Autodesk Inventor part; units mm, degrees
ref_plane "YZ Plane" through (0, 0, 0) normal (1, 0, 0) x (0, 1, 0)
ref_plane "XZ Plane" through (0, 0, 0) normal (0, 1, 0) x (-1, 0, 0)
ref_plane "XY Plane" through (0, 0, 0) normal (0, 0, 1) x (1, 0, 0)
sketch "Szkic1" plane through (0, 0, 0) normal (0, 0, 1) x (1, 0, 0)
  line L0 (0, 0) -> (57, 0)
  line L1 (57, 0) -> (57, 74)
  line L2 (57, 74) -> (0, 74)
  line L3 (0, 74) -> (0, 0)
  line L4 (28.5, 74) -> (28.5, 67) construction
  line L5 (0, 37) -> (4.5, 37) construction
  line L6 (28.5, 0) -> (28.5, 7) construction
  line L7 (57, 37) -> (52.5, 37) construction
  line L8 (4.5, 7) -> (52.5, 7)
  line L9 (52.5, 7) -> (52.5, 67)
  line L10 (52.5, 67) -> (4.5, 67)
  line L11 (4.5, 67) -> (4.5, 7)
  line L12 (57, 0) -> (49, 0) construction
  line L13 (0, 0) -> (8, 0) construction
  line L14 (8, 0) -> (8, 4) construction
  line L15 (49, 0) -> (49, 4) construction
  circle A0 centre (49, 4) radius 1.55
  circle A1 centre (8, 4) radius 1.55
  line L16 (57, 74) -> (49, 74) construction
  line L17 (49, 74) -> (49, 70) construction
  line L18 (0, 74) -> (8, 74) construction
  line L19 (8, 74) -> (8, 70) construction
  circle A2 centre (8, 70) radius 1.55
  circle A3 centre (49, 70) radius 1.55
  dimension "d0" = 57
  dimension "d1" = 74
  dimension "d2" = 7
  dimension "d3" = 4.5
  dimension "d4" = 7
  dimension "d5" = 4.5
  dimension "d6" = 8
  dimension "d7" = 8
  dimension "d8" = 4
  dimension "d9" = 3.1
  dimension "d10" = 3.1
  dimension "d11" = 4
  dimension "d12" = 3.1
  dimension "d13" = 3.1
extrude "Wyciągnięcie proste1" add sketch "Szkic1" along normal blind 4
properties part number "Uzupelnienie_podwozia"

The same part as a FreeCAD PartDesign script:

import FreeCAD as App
import Part
import Sketcher
from FreeCAD import Vector

doc = App.newDocument("Part")
body = doc.addObject("PartDesign::Body", "Body")

# Sketch on XY plane
sketch1 = body.newObject("Sketcher::SketchObject", "Sketch")
sketch1.AttachmentSupport = (doc.getObject("XY_Plane"), [""])
sketch1.MapMode = "FlatFace"
sketch1.addGeometry([
    Part.LineSegment(Vector(0, 74, 0), Vector(0, 0, 0)),  # 0
    Part.LineSegment(Vector(0, 0, 0), Vector(57, 0, 0)),  # 1
    Part.LineSegment(Vector(57, 0, 0), Vector(57, 74, 0)),  # 2
    Part.LineSegment(Vector(57, 74, 0), Vector(0, 74, 0)),  # 3
    Part.Circle(Vector(8, 4, 0), Vector(0, 0, 1), 1.6),  # 4
    Part.Circle(Vector(49, 4, 0), Vector(0, 0, 1), 1.6),  # 5
    Part.Circle(Vector(8, 70, 0), Vector(0, 0, 1), 1.6),  # 6
    Part.LineSegment(Vector(52.5, 7, 0), Vector(4.5, 7, 0)),  # 7
    Part.LineSegment(Vector(4.5, 7, 0), Vector(4.5, 67, 0)),  # 8
    Part.LineSegment(Vector(4.5, 67, 0), Vector(52.5, 67, 0)),  # 9
    Part.LineSegment(Vector(52.5, 67, 0), Vector(52.5, 7, 0)),  # 10
    Part.Circle(Vector(49, 70, 0), Vector(0, 0, 1), 1.6),  # 11
], False)
sketch1.addConstraint([
    Sketcher.Constraint("Coincident", 0, 2, 1, 1),
    Sketcher.Constraint("Coincident", 1, 2, 2, 1),
    Sketcher.Constraint("Coincident", 2, 2, 3, 1),
    Sketcher.Constraint("Coincident", 3, 2, 0, 1),
    Sketcher.Constraint("Coincident", 7, 2, 8, 1),
    Sketcher.Constraint("Coincident", 8, 2, 9, 1),
    Sketcher.Constraint("Coincident", 9, 2, 10, 1),
    Sketcher.Constraint("Coincident", 10, 2, 7, 1),
    Sketcher.Constraint("Vertical", 0),
    Sketcher.Constraint("Horizontal", 1),
    Sketcher.Constraint("Vertical", 2),
    Sketcher.Constraint("Horizontal", 3),
    Sketcher.Constraint("Horizontal", 7),
    Sketcher.Constraint("Vertical", 8),
    Sketcher.Constraint("Horizontal", 9),
    Sketcher.Constraint("Vertical", 10),
    Sketcher.Constraint("Coincident", 0, 2, -1, 1),
    Sketcher.Constraint("Equal", 4, 5),
    Sketcher.Constraint("Equal", 5, 6),
    Sketcher.Constraint("Equal", 6, 11),
    Sketcher.Constraint("Horizontal", 4, 3, 5, 3),
    Sketcher.Constraint("Horizontal", 6, 3, 11, 3),
    Sketcher.Constraint("Vertical", 4, 3, 6, 3),
    Sketcher.Constraint("Vertical", 5, 3, 11, 3),
    Sketcher.Constraint("Diameter", 4, 3.1),
    Sketcher.Constraint("DistanceX", 1, 1, 1, 2, 57.0),
    Sketcher.Constraint("DistanceY", 0, 2, 0, 1, 74.0),
    Sketcher.Constraint("DistanceX", -1, 1, 4, 3, 8.0),
    Sketcher.Constraint("DistanceY", -1, 1, 4, 3, 4.0),
    Sketcher.Constraint("DistanceY", -1, 1, 7, 2, 7.0),
    Sketcher.Constraint("DistanceX", 5, 3, 1, 2, 8.0),
    Sketcher.Constraint("DistanceY", 11, 3, 2, 2, 4.0),
    Sketcher.Constraint("DistanceY", 8, 2, 3, 2, 7.0),
    Sketcher.Constraint("DistanceX", -1, 1, 7, 2, 4.5),
    Sketcher.Constraint("DistanceX", 9, 2, 2, 2, 4.5),
])
pad1 = body.newObject("PartDesign::Pad", "Pad")
pad1.Profile = sketch1
pad1.Length = 4

doc.recompute()
